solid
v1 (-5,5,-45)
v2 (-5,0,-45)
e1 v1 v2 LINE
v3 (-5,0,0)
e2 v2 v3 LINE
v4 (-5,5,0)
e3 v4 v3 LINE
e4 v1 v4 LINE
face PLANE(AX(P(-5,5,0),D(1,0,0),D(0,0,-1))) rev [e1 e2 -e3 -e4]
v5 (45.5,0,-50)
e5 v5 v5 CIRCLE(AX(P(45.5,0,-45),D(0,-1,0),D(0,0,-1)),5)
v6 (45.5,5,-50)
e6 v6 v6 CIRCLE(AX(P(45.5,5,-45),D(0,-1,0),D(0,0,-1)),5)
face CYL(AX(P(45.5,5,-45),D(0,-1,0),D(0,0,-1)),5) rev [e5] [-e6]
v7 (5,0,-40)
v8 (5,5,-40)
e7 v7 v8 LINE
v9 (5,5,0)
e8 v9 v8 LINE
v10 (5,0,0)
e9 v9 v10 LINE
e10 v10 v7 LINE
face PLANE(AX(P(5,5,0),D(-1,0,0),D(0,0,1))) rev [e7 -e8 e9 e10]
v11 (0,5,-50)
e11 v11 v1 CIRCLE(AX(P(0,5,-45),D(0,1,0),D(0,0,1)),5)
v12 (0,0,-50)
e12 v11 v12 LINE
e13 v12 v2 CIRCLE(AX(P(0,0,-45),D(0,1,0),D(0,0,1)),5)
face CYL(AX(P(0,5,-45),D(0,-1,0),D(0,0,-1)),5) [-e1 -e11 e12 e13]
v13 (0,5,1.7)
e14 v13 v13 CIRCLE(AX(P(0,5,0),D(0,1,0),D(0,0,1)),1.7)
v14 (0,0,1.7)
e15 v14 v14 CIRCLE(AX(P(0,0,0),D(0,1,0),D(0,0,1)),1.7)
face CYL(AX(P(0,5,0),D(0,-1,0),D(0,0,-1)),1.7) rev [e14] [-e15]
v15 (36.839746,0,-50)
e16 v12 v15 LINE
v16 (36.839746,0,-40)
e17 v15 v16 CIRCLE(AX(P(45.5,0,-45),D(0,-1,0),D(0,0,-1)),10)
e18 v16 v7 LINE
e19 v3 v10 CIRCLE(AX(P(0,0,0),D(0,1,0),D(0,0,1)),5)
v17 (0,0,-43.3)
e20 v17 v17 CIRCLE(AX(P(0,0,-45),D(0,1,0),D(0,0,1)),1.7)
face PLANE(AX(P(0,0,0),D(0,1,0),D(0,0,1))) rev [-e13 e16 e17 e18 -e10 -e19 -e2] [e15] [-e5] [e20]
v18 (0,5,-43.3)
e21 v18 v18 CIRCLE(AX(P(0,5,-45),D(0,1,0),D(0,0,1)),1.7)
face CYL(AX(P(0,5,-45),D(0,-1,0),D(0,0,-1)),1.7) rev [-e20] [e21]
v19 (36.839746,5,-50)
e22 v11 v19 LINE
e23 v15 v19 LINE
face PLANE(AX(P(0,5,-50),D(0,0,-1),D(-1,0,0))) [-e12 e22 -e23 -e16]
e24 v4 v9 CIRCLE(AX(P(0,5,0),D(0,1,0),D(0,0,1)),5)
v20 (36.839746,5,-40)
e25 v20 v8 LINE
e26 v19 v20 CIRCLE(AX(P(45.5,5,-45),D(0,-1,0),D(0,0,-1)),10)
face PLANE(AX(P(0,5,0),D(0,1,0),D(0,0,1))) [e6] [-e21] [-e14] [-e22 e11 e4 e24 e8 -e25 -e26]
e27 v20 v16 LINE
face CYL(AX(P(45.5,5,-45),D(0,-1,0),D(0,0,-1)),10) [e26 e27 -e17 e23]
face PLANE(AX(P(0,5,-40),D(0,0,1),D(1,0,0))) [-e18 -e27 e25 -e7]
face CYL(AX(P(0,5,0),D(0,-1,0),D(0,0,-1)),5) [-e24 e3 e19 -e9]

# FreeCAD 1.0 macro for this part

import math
import FreeCAD as App
import Part
import Sketcher

V = App.Vector

doc = App.newDocument("Part")
body = doc.addObject("PartDesign::Body", "Body")

sketch1 = body.newObject("Sketcher::SketchObject", "Sketch")
sketch1.AttachmentSupport = (doc.getObject("XZ_Plane"), [""])
sketch1.MapMode = "FlatFace"
sketch1.addGeometry(Part.LineSegment(V(-5, -45, 0), V(-5, 0, 0)), False)
sketch1.addGeometry(Part.ArcOfCircle(Part.Circle(V(0, 0, 0), V(0, 0, 1), 5), math.radians(0), math.radians(180)), False)
sketch1.addGeometry(Part.LineSegment(V(5, 0, 0), V(5, -45, 0)), False)
sketch1.addGeometry(Part.ArcOfCircle(Part.Circle(V(0, -45, 0), V(0, 0, 1), 5), math.radians(180), math.radians(360)), False)
sketch1.addGeometry(Part.Circle(V(0, 0, 0), V(0, 0, 1), 1.7), False)
sketch1.addGeometry(Part.Circle(V(0, -45, 0), V(0, 0, 1), 1.7), False)
sketch1.addConstraint(Sketcher.Constraint("Tangent", 0, 2, 1, 2))
sketch1.addConstraint(Sketcher.Constraint("Tangent", 1, 1, 2, 1))
sketch1.addConstraint(Sketcher.Constraint("Tangent", 2, 2, 3, 2))
sketch1.addConstraint(Sketcher.Constraint("Tangent", 3, 1, 0, 1))
sketch1.addConstraint(Sketcher.Constraint("Vertical", 0))
sketch1.addConstraint(Sketcher.Constraint("Vertical", 2))
sketch1.addConstraint(Sketcher.Constraint("Coincident", 1, 3, -1, 1))
sketch1.addConstraint(Sketcher.Constraint("Coincident", 4, 3, -1, 1))
sketch1.addConstraint(Sketcher.Constraint("Coincident", 5, 3, 3, 3))
sketch1.addConstraint(Sketcher.Constraint("Equal", 4, 5))
sketch1.addConstraint(Sketcher.Constraint("Radius", 1, 5.0))
sketch1.addConstraint(Sketcher.Constraint("Diameter", 4, 3.4))
sketch1.addConstraint(Sketcher.Constraint("DistanceY", 0, 1, 0, 2, 45.0))
pad1 = body.newObject("PartDesign::Pad", "Pad")
pad1.Profile = sketch1
pad1.Length = 5
pad1.Reversed = True

sketch2 = body.newObject("Sketcher::SketchObject", "Sketch001")
sketch2.AttachmentSupport = (doc.getObject("XZ_Plane"), [""])
sketch2.MapMode = "FlatFace"
sketch2.addGeometry(Part.LineSegment(V(45.5, -40, 0), V(0, -40, 0)), False)
sketch2.addGeometry(Part.ArcOfCircle(Part.Circle(V(0, -45, 0), V(0, 0, 1), 5), math.radians(90), math.radians(270)), False)
sketch2.addGeometry(Part.LineSegment(V(0, -50, 0), V(45.5, -50, 0)), False)
sketch2.addGeometry(Part.ArcOfCircle(Part.Circle(V(45.5, -45, 0), V(0, 0, 1), 5), math.radians(-90), math.radians(90)), False)
sketch2.addGeometry(Part.Circle(V(45.5, -45, 0), V(0, 0, 1), 1.7), False)
sketch2.addGeometry(Part.Circle(V(0, -45, 0), V(0, 0, 1), 1.7), False)
sketch2.addConstraint(Sketcher.Constraint("Tangent", 0, 2, 1, 1))
sketch2.addConstraint(Sketcher.Constraint("Tangent", 1, 2, 2, 1))
sketch2.addConstraint(Sketcher.Constraint("Tangent", 2, 2, 3, 1))
sketch2.addConstraint(Sketcher.Constraint("Tangent", 3, 2, 0, 1))
sketch2.addConstraint(Sketcher.Constraint("Horizontal", 0))
sketch2.addConstraint(Sketcher.Constraint("Horizontal", 2))
sketch2.addConstraint(Sketcher.Constraint("Coincident", 4, 3, 3, 3))
sketch2.addConstraint(Sketcher.Constraint("Coincident", 5, 3, 1, 3))
sketch2.addConstraint(Sketcher.Constraint("Equal", 4, 5))
sketch2.addConstraint(Sketcher.Constraint("PointOnObject", 1, 3, -2))
sketch2.addConstraint(Sketcher.Constraint("Radius", 1, 5.0))
sketch2.addConstraint(Sketcher.Constraint("Diameter", 4, 3.4))
sketch2.addConstraint(Sketcher.Constraint("DistanceX", 0, 2, 0, 1, 45.5))
sketch2.addConstraint(Sketcher.Constraint("DistanceY", 1, 3, -1, 1, 45.0))
pad2 = body.newObject("PartDesign::Pad", "Pad001")
pad2.Profile = sketch2
pad2.Length = 5
pad2.Reversed = True

sketch3 = body.newObject("Sketcher::SketchObject", "Sketch002")
sketch3.AttachmentSupport = (doc.getObject("XZ_Plane"), [""])
sketch3.MapMode = "FlatFace"
sketch3.addGeometry(Part.Circle(V(46, -45, 0), V(0, 0, 1), 10), False)
sketch3.addGeometry(Part.Circle(V(46, -45, 0), V(0, 0, 1), 5), False)
sketch3.addConstraint(Sketcher.Constraint("Coincident", 1, 3, 0, 3))
sketch3.addConstraint(Sketcher.Constraint("Diameter", 0, 20.0))
sketch3.addConstraint(Sketcher.Constraint("Diameter", 1, 10.0))
sketch3.addConstraint(Sketcher.Constraint("DistanceY", 0, 3, -1, 1, 45.0))
sketch3.addConstraint(Sketcher.Constraint("DistanceX", -1, 1, 0, 3, 45.5))
pad3 = body.newObject("PartDesign::Pad", "Pad002")
pad3.Profile = sketch3
pad3.Length = 5
pad3.Reversed = True

sketch4 = body.newObject("Sketcher::SketchObject", "Sketch003")
sketch4.AttachmentSupport = (doc.getObject("XZ_Plane"), [""])
sketch4.MapMode = "FlatFace"
sketch4.addGeometry(Part.Circle(V(46, -45, 0), V(0, 0, 1), 5), False)
sketch4.addConstraint(Sketcher.Constraint("Diameter", 0, 10.0))
sketch4.addConstraint(Sketcher.Constraint("DistanceY", 0, 3, -1, 1, 45.0))
sketch4.addConstraint(Sketcher.Constraint("DistanceX", -1, 1, 0, 3, 45.5))
pocket1 = body.newObject("PartDesign::Pocket", "Pocket")
pocket1.Profile = sketch4
pocket1.Length = 5

doc.recompute()
